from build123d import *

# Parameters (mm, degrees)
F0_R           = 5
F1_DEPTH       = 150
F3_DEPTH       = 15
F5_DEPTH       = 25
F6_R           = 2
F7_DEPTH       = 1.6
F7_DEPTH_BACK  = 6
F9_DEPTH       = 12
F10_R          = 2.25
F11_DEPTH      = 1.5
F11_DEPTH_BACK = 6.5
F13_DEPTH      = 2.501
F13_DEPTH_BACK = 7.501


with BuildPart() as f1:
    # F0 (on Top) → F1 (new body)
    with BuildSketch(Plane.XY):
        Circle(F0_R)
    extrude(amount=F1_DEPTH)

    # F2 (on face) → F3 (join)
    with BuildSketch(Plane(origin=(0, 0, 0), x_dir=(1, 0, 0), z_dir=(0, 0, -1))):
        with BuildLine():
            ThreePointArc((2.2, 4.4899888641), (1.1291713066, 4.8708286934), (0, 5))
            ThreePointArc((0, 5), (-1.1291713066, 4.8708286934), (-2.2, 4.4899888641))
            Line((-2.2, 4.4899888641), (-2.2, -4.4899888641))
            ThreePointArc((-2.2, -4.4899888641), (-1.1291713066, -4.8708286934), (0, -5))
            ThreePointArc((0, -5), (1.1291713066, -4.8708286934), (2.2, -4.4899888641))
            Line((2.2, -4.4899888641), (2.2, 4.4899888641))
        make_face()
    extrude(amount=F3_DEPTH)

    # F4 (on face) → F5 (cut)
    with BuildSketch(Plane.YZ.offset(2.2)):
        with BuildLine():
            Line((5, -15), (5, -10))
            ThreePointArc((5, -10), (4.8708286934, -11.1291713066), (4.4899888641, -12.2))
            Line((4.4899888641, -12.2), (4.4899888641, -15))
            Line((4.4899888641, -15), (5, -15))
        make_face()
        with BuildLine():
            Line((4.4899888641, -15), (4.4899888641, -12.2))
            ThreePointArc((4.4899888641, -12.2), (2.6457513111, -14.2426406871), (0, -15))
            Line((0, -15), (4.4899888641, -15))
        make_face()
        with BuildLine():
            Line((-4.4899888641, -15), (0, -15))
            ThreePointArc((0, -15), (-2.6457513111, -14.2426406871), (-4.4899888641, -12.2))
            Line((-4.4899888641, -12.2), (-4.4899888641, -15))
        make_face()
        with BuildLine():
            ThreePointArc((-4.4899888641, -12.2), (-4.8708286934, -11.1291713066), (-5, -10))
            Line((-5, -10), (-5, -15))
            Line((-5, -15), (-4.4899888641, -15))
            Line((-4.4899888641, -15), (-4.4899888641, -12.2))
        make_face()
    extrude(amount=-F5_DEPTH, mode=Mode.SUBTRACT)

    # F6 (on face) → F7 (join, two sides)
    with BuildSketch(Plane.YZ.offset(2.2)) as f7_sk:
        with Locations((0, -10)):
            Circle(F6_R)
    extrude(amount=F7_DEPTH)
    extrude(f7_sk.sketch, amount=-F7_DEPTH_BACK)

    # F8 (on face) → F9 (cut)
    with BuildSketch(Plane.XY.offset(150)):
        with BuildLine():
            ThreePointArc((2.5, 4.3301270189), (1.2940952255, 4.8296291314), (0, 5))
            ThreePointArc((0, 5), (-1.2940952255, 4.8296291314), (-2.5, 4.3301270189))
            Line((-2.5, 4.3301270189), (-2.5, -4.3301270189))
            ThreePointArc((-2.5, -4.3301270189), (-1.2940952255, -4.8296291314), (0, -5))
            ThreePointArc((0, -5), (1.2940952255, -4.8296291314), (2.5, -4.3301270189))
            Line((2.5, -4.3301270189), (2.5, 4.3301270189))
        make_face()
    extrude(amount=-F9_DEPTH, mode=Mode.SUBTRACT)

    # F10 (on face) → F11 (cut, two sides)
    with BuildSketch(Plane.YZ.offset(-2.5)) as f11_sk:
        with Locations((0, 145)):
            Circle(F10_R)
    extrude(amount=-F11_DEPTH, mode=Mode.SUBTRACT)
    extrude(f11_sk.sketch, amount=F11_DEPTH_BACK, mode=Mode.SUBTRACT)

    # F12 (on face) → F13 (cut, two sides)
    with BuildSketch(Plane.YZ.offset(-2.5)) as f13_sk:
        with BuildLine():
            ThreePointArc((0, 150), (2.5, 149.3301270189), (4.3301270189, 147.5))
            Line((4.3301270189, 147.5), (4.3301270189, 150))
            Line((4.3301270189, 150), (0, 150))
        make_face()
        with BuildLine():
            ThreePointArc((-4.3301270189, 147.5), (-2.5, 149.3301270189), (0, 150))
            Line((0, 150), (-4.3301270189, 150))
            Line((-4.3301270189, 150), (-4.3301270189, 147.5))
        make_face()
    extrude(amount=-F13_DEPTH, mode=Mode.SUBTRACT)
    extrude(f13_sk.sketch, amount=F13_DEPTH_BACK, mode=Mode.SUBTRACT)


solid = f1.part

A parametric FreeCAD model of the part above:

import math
import FreeCAD as App
import Part
import Sketcher

V = App.Vector
Q = App.Units.Quantity

doc = App.newDocument("Part")
body = doc.addObject("PartDesign::Body", "Body")

sketch1 = body.newObject("Sketcher::SketchObject", "Sketch")
sketch1.AttachmentSupport = (doc.getObject("XY_Plane"), [""])
sketch1.MapMode = "FlatFace"
sketch1.addGeometry(Part.Circle(V(0, 0, 0), V(0, 0, 1), 5), False)
sketch1.addConstraint([
    Sketcher.Constraint("Coincident", 0, 3, -1, 1),
    Sketcher.Constraint("Diameter", 0, Q("10 mm")),
])
pad1 = body.newObject("PartDesign::Pad", "Pad")
pad1.Profile = sketch1
pad1.Length = 150

sketch2 = body.newObject("Sketcher::SketchObject", "Sketch001")
sketch2.AttachmentSupport = (doc.getObject("XY_Plane"), [""])
sketch2.MapMode = "FlatFace"
sketch2.addGeometry([
    Part.ArcOfCircle(Part.Circle(V(0, 0, 0), V(0, 0, 1), 5), math.radians(-90), math.radians(-63.896119)),
    Part.ArcOfCircle(Part.Circle(V(0, 0, 0), V(0, 0, 1), 5), math.radians(-116.103881), math.radians(-90)),
    Part.LineSegment(V(-2.2, -4.489989, 0), V(-2.2, 4.489989, 0)),
    Part.ArcOfCircle(Part.Circle(V(0, 0, 0), V(0, 0, 1), 5), math.radians(90), math.radians(116.103881)),
    Part.ArcOfCircle(Part.Circle(V(0, 0, 0), V(0, 0, 1), 5), math.radians(63.896119), math.radians(90)),
    Part.LineSegment(V(2.2, 4.489989, 0), V(2.2, -4.489989, 0)),
], False)
sketch2.addConstraint([
    Sketcher.Constraint("Tangent", 0, 1, 1, 2),
    Sketcher.Constraint("Coincident", 1, 1, 2, 1),
    Sketcher.Constraint("Coincident", 2, 2, 3, 2),
    Sketcher.Constraint("Tangent", 3, 1, 4, 2),
    Sketcher.Constraint("Coincident", 4, 1, 5, 1),
    Sketcher.Constraint("Coincident", 5, 2, 0, 2),
    Sketcher.Constraint("Vertical", 2),
    Sketcher.Constraint("Vertical", 5),
    Sketcher.Constraint("Coincident", 0, 3, -1, 1),
    Sketcher.Constraint("Coincident", 3, 3, -1, 1),
    Sketcher.Constraint("Equal", 0, 1),
    Sketcher.Constraint("Equal", 1, 3),
    Sketcher.Constraint("Equal", 3, 4),
    Sketcher.Constraint("PointOnObject", 0, 1, -2),
    Sketcher.Constraint("PointOnObject", 3, 1, -2),
    Sketcher.Constraint("Horizontal", 2, 2, 4, 1),
    Sketcher.Constraint("Radius", 0, Q("5 mm")),
    Sketcher.Constraint("DistanceX", 1, 1, -1, 1, Q("2.2 mm")),
])
pad2 = body.newObject("PartDesign::Pad", "Pad001")
pad2.Profile = sketch2
pad2.Length = 15
pad2.Reversed = True

sketch3 = body.newObject("Sketcher::SketchObject", "Sketch002")
sketch3.AttachmentSupport = (doc.getObject("YZ_Plane"), [""])
sketch3.MapMode = "FlatFace"
sketch3.AttachmentOffset = App.Placement(V(0, 0, 2.2), App.Rotation())
sketch3.addGeometry([
    Part.LineSegment(V(5, -15, 0), V(5, -10, 0)),
    Part.ArcOfCircle(Part.Circle(V(0, -10, 0), V(0, 0, 1), 5), math.radians(-26.103881), math.radians(0)),
    Part.ArcOfCircle(Part.Circle(V(0, -10, 0), V(0, 0, 1), 5), math.radians(-90), math.radians(-26.103881)),
    Part.LineSegment(V(0, -15, 0), V(5, -15, 0)),
    Part.ArcOfCircle(Part.Circle(V(0, -10, 0), V(0, 0, 1), 5), math.radians(-153.896119), math.radians(-90)),
    Part.ArcOfCircle(Part.Circle(V(0, -10, 0), V(0, 0, 1), 5), math.radians(180), math.radians(206.103881)),
    Part.LineSegment(V(-5, -10, 0), V(-5, -15, 0)),
    Part.LineSegment(V(-5, -15, 0), V(0, -15, 0)),
], False)
sketch3.addConstraint([
    Sketcher.Constraint("Tangent", 0, 2, 1, 2),
    Sketcher.Constraint("Tangent", 1, 1, 2, 2),
    Sketcher.Constraint("Tangent", 2, 1, 3, 1),
    Sketcher.Constraint("Coincident", 3, 2, 0, 1),
    Sketcher.Constraint("Tangent", 4, 1, 5, 2),
    Sketcher.Constraint("Tangent", 5, 1, 6, 1),
    Sketcher.Constraint("Coincident", 6, 2, 7, 1),
    Sketcher.Constraint("Tangent", 7, 2, 4, 2),
    Sketcher.Constraint("Vertical", 0),
    Sketcher.Constraint("Horizontal", 3),
    Sketcher.Constraint("Vertical", 6),
    Sketcher.Constraint("Horizontal", 7),
    Sketcher.Constraint("Coincident", 4, 3, 1, 3),
    Sketcher.Constraint("Coincident", 7, 2, 2, 1),
    Sketcher.Constraint("Equal", 4, 5),
    Sketcher.Constraint("Symmetric", 1, 1, 4, 1, -2),
    Sketcher.Constraint("Radius", 1, Q("5 mm")),
    Sketcher.Constraint("DistanceY", 1, 3, -1, 1, Q("10 mm")),
    Sketcher.Constraint("DistanceY", 1, 1, -1, 1, Q("12.2 mm")),
])
pocket1 = body.newObject("PartDesign::Pocket", "Pocket")
pocket1.Profile = sketch3
pocket1.Length = 25

sketch4 = body.newObject("Sketcher::SketchObject", "Sketch003")
sketch4.AttachmentSupport = (doc.getObject("YZ_Plane"), [""])
sketch4.MapMode = "FlatFace"
sketch4.AttachmentOffset = App.Placement(V(0, 0, 2.2), App.Rotation())
sketch4.addGeometry(Part.Circle(V(0, -10, 0), V(0, 0, 1), 2), False)
sketch4.addConstraint([
    Sketcher.Constraint("PointOnObject", 0, 3, -2),
    Sketcher.Constraint("Diameter", 0, Q("4 mm")),
    Sketcher.Constraint("DistanceY", 0, 3, -1, 1, Q("10 mm")),
])
pad3 = body.newObject("PartDesign::Pad", "Pad002")
pad3.Profile = sketch4
pad3.Type = "TwoLengths"
pad3.Length = 1.6
pad3.Length2 = 6

sketch5 = body.newObject("Sketcher::SketchObject", "Sketch004")
sketch5.AttachmentSupport = (doc.getObject("XY_Plane"), [""])
sketch5.MapMode = "FlatFace"
sketch5.AttachmentOffset = App.Placement(V(0, 0, 150), App.Rotation())
sketch5.addGeometry([
    Part.ArcOfCircle(Part.Circle(V(0, 0, 0), V(0, 0, 1), 5), math.radians(60), math.radians(90)),
    Part.ArcOfCircle(Part.Circle(V(0, 0, 0), V(0, 0, 1), 5), math.radians(90), math.radians(120)),
    Part.LineSegment(V(-2.5, 4.330127, 0), V(-2.5, -4.330127, 0)),
    Part.ArcOfCircle(Part.Circle(V(0, 0, 0), V(0, 0, 1), 5), math.radians(-120), math.radians(-90)),
    Part.ArcOfCircle(Part.Circle(V(0, 0, 0), V(0, 0, 1), 5), math.radians(-90), math.radians(-60)),
    Part.LineSegment(V(2.5, -4.330127, 0), V(2.5, 4.330127, 0)),
], False)
sketch5.addConstraint([
    Sketcher.Constraint("Tangent", 0, 2, 1, 1),
    Sketcher.Constraint("Coincident", 1, 2, 2, 1),
    Sketcher.Constraint("Coincident", 2, 2, 3, 1),
    Sketcher.Constraint("Tangent", 3, 2, 4, 1),
    Sketcher.Constraint("Coincident", 4, 2, 5, 1),
    Sketcher.Constraint("Coincident", 5, 2, 0, 1),
    Sketcher.Constraint("Vertical", 2),
    Sketcher.Constraint("Vertical", 5),
    Sketcher.Constraint("Coincident", 0, 3, -1, 1),
    Sketcher.Constraint("Coincident", 3, 3, -1, 1),
    Sketcher.Constraint("Equal", 0, 1),
    Sketcher.Constraint("Equal", 1, 3),
    Sketcher.Constraint("Equal", 3, 4),
    Sketcher.Constraint("PointOnObject", 0, 2, -2),
    Sketcher.Constraint("PointOnObject", 3, 2, -2),
    Sketcher.Constraint("Horizontal", 2, 2, 4, 2),
    Sketcher.Constraint("Radius", 0, Q("5 mm")),
    Sketcher.Constraint("DistanceX", 2, 2, 4, 2, Q("5 mm")),
])
pocket2 = body.newObject("PartDesign::Pocket", "Pocket001")
pocket2.Profile = sketch5
pocket2.Length = 12

sketch6 = body.newObject("Sketcher::SketchObject", "Sketch005")
sketch6.AttachmentSupport = (doc.getObject("YZ_Plane"), [""])
sketch6.MapMode = "FlatFace"
sketch6.AttachmentOffset = App.Placement(V(0, 0, -2.5), App.Rotation())
sketch6.addGeometry(Part.Circle(V(0, 145, 0), V(0, 0, 1), 2.25), False)
sketch6.addConstraint([
    Sketcher.Constraint("PointOnObject", 0, 3, -2),
    Sketcher.Constraint("Diameter", 0, Q("4.5 mm")),
    Sketcher.Constraint("DistanceY", -1, 1, 0, 3, Q("145 mm")),
])
pocket3 = body.newObject("PartDesign::Pocket", "Pocket002")
pocket3.Profile = sketch6
pocket3.Type = "TwoLengths"
pocket3.Length = 1.5
pocket3.Length2 = 6.5

sketch7 = body.newObject("Sketcher::SketchObject", "Sketch006")
sketch7.AttachmentSupport = (doc.getObject("YZ_Plane"), [""])
sketch7.MapMode = "FlatFace"
sketch7.AttachmentOffset = App.Placement(V(0, 0, -2.5), App.Rotation())
sketch7.addGeometry([
    Part.ArcOfCircle(Part.Circle(V(0, 145, 0), V(0, 0, 1), 5), math.radians(30), math.radians(90)),
    Part.LineSegment(V(4.330127, 147.5, 0), V(4.330127, 150, 0)),
    Part.LineSegment(V(4.330127, 150, 0), V(0, 150, 0)),
    Part.ArcOfCircle(Part.Circle(V(0, 145, 0), V(0, 0, 1), 5), math.radians(90), math.radians(150)),
    Part.LineSegment(V(0, 150, 0), V(-4.330127, 150, 0)),
    Part.LineSegment(V(-4.330127, 150, 0), V(-4.330127, 147.5, 0)),
], False)
sketch7.addConstraint([
    Sketcher.Constraint("Coincident", 0, 1, 1, 1),
    Sketcher.Constraint("Coincident", 1, 2, 2, 1),
    Sketcher.Constraint("Tangent", 2, 2, 0, 2),
    Sketcher.Constraint("Tangent", 3, 1, 4, 1),
    Sketcher.Constraint("Coincident", 4, 2, 5, 1),
    Sketcher.Constraint("Coincident", 5, 2, 3, 2),
    Sketcher.Constraint("Vertical", 1),
    Sketcher.Constraint("Horizontal", 2),
    Sketcher.Constraint("Horizontal", 4),
    Sketcher.Constraint("Vertical", 5),
    Sketcher.Constraint("Coincident", 3, 3, 0, 3),
    Sketcher.Constraint("Equal", 0, 3),
    Sketcher.Constraint("Symmetric", 0, 1, 5, 2, -2),
    Sketcher.Constraint("Radius", 0, Q("5 mm")),
    Sketcher.Constraint("DistanceY", 1, 1, 1, 2, Q("2.5 mm")),
    Sketcher.Constraint("DistanceY", -1, 1, 0, 3, Q("145 mm")),
])
pocket4 = body.newObject("PartDesign::Pocket", "Pocket003")
pocket4.Profile = sketch7
pocket4.Type = "ThroughAll"
pocket4.Midplane = True

doc.recompute()
